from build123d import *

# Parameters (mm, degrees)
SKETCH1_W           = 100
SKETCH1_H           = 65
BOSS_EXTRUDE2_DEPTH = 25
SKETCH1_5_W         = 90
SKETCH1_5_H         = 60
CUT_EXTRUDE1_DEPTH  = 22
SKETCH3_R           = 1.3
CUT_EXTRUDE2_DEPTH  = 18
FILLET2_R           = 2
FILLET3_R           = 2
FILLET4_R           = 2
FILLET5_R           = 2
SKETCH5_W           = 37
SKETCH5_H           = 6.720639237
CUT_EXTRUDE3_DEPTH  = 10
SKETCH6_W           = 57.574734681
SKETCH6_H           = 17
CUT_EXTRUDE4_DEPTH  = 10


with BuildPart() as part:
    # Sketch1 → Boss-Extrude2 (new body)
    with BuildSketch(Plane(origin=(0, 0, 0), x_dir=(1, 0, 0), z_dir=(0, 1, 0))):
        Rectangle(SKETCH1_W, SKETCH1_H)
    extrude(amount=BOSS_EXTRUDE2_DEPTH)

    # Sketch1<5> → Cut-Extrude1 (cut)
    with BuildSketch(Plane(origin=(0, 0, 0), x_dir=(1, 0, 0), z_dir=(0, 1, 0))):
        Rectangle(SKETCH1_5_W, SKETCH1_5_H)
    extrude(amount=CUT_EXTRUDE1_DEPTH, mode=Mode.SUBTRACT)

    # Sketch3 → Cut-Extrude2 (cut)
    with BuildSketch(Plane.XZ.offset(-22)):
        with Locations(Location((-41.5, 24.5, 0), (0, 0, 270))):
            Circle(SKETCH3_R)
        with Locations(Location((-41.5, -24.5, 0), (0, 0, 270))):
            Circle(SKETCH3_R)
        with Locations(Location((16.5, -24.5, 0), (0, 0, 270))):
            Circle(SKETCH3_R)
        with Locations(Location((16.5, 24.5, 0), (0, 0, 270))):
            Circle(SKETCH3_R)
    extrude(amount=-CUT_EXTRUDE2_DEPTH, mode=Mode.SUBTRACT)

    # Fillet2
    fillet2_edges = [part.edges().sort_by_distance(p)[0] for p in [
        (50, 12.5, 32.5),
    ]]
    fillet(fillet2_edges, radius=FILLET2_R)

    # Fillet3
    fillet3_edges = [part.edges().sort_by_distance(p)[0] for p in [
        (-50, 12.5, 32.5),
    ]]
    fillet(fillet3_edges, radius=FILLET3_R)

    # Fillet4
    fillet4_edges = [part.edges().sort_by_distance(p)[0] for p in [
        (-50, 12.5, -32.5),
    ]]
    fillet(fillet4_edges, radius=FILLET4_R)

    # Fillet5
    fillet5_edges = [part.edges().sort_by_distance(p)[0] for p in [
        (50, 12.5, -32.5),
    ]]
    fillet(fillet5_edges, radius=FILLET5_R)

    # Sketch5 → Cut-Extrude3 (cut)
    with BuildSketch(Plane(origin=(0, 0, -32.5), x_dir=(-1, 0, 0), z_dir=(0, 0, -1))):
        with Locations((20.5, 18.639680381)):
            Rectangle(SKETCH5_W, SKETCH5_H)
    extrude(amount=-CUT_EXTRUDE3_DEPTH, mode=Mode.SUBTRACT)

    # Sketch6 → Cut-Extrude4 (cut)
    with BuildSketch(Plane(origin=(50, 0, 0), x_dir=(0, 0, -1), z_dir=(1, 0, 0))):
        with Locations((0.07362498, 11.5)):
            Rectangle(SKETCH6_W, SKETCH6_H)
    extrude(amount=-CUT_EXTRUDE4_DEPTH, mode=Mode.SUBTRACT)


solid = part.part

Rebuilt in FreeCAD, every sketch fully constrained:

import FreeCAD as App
import Part
import Sketcher

V = App.Vector


def edges_at(feature, points):
    """Names of the edges that pass closest to the given points."""
    edges = feature.Shape.Edges
    near = lambda p: min(range(len(edges)), key=lambda i: edges[i].distToShape(Part.Vertex(*p))[0])
    return sorted({f"Edge{near(p) + 1}" for p in points})

doc = App.newDocument("Part")
params = doc.addObject("Spreadsheet::Sheet", "Params")
for row, (alias, value) in enumerate([
    ("sketch1_width", "100 mm"),
    ("sketch1_height", "65 mm"),
    ("pad1_length", "25 mm"),
    ("sketch2_width", "90 mm"),
    ("sketch2_height", "60 mm"),
    ("pocket1_length", "22 mm"),
    ("sketch3_diameter", "2.6 mm"),
    ("pocket2_length", "18 mm"),
    ("fillet_radius", "2 mm"),
    ("fillet2_radius", "2 mm"),
    ("fillet3_radius", "2 mm"),
    ("fillet4_radius", "2 mm"),
    ("sketch4_width", "37 mm"),
    ("pocket3_length", "10 mm"),
    ("sketch5_width", "17 mm"),
    ("pocket4_length", "10 mm"),
], start=1):
    params.set(f"A{row}", alias)
    params.set(f"B{row}", "=" + value)
    params.setAlias(f"B{row}", alias)

body = doc.addObject("PartDesign::Body", "Body")

# Sketch on XZ plane
sketch1 = body.newObject("Sketcher::SketchObject", "Sketch")
sketch1.AttachmentSupport = (doc.getObject("XZ_Plane"), [""])
sketch1.MapMode = "FlatFace"
sketch1.addGeometry(Part.LineSegment(V(-50, -32, 0), V(-50, 32, 0)), False)
sketch1.addGeometry(Part.LineSegment(V(-50, 32, 0), V(50, 32, 0)), False)
sketch1.addGeometry(Part.LineSegment(V(50, 32, 0), V(50, -32, 0)), False)
sketch1.addGeometry(Part.LineSegment(V(50, -32, 0), V(-50, -32, 0)), False)
sketch1.addConstraint(Sketcher.Constraint("Coincident", 0, 2, 1, 1))
sketch1.addConstraint(Sketcher.Constraint("Coincident", 1, 2, 2, 1))
sketch1.addConstraint(Sketcher.Constraint("Coincident", 2, 2, 3, 1))
sketch1.addConstraint(Sketcher.Constraint("Coincident", 3, 2, 0, 1))
sketch1.addConstraint(Sketcher.Constraint("Vertical", 0))
sketch1.addConstraint(Sketcher.Constraint("Horizontal", 1))
sketch1.addConstraint(Sketcher.Constraint("Vertical", 2))
sketch1.addConstraint(Sketcher.Constraint("Horizontal", 3))
sketch1.addConstraint(Sketcher.Constraint("Symmetric", 0, 2, 2, 2, -1, 1))
sketch1.addConstraint(Sketcher.Constraint("DistanceX", 1, 1, 1, 2, 100.0))
sketch1.addConstraint(Sketcher.Constraint("DistanceY", 0, 1, 0, 2, 65.0))
sketch1.setExpression("Constraints[9]", "Params.sketch1_width")
sketch1.setExpression("Constraints[10]", "Params.sketch1_height")
pad1 = body.newObject("PartDesign::Pad", "Pad")
pad1.Profile = sketch1
pad1.setExpression("Length", "Params.pad1_length")
pad1.Reversed = True

# Sketch on XZ plane
sketch2 = body.newObject("Sketcher::SketchObject", "Sketch001")
sketch2.AttachmentSupport = (doc.getObject("XZ_Plane"), [""])
sketch2.MapMode = "FlatFace"
sketch2.addGeometry(Part.LineSegment(V(-45, -30, 0), V(-45, 30, 0)), False)
sketch2.addGeometry(Part.LineSegment(V(-45, 30, 0), V(45, 30, 0)), False)
sketch2.addGeometry(Part.LineSegment(V(45, 30, 0), V(45, -30, 0)), False)
sketch2.addGeometry(Part.LineSegment(V(45, -30, 0), V(-45, -30, 0)), False)
sketch2.addConstraint(Sketcher.Constraint("Coincident", 0, 2, 1, 1))
sketch2.addConstraint(Sketcher.Constraint("Coincident", 1, 2, 2, 1))
sketch2.addConstraint(Sketcher.Constraint("Coincident", 2, 2, 3, 1))
sketch2.addConstraint(Sketcher.Constraint("Coincident", 3, 2, 0, 1))
sketch2.addConstraint(Sketcher.Constraint("Vertical", 0))
sketch2.addConstraint(Sketcher.Constraint("Horizontal", 1))
sketch2.addConstraint(Sketcher.Constraint("Vertical", 2))
sketch2.addConstraint(Sketcher.Constraint("Horizontal", 3))
sketch2.addConstraint(Sketcher.Constraint("Symmetric", 0, 2, 2, 2, -1, 1))
sketch2.addConstraint(Sketcher.Constraint("DistanceX", 1, 1, 1, 2, 90.0))
sketch2.addConstraint(Sketcher.Constraint("DistanceY", 0, 1, 0, 2, 60.0))
sketch2.setExpression("Constraints[9]", "Params.sketch2_width")
sketch2.setExpression("Constraints[10]", "Params.sketch2_height")
pocket1 = body.newObject("PartDesign::Pocket", "Pocket")
pocket1.Profile = sketch2
pocket1.setExpression("Length", "Params.pocket1_length")

# Sketch on XZ plane
sketch3 = body.newObject("Sketcher::SketchObject", "Sketch002")
sketch3.AttachmentSupport = (doc.getObject("XZ_Plane"), [""])
sketch3.MapMode = "FlatFace"
sketch3.AttachmentOffset = App.Placement(V(0, 0, -22), App.Rotation())
sketch3.addGeometry(Part.Circle(V(-41.5, 24.5, 0), V(0, 0, 1), 1.3), False)
sketch3.addGeometry(Part.Circle(V(-41.5, -24.5, 0), V(0, 0, 1), 1.3), False)
sketch3.addGeometry(Part.Circle(V(16.5, -24.5, 0), V(0, 0, 1), 1.3), False)
sketch3.addGeometry(Part.Circle(V(16.5, 24.5, 0), V(0, 0, 1), 1.3), False)
sketch3.addConstraint(Sketcher.Constraint("Equal", 0, 1))
sketch3.addConstraint(Sketcher.Constraint("Equal", 1, 2))
sketch3.addConstraint(Sketcher.Constraint("Equal", 2, 3))
sketch3.addConstraint(Sketcher.Constraint("Symmetric", 0, 3, 1, 3, -1))
sketch3.addConstraint(Sketcher.Constraint("Symmetric", 2, 3, 3, 3, -1))
sketch3.addConstraint(Sketcher.Constraint("Horizontal", 1, 3, 2, 3))
sketch3.addConstraint(Sketcher.Constraint("Diameter", 0, 2.6))
sketch3.addConstraint(Sketcher.Constraint("DistanceY", 1, 3, 0, 3, 49.0))
sketch3.addConstraint(Sketcher.Constraint("DistanceX", 1, 3, 2, 3, 58.0))
sketch3.addConstraint(Sketcher.Constraint("DistanceX", 0, 3, -1, 1, 41.5))
sketch3.setExpression("Constraints[6]", "Params.sketch3_diameter")
pocket2 = body.newObject("PartDesign::Pocket", "Pocket001")
pocket2.Profile = sketch3
pocket2.setExpression("Length", "Params.pocket2_length")
doc.recompute()

fillet = body.newObject("PartDesign::Fillet", "Fillet")
fillet.Base = (pocket2, edges_at(pocket2, [(50, 12.5, 32.5)]))
fillet.setExpression("Radius", "Params.fillet_radius")
doc.recompute()

fillet2 = body.newObject("PartDesign::Fillet", "Fillet001")
fillet2.Base = (fillet, edges_at(fillet, [(-50, 12.5, 32.5)]))
fillet2.setExpression("Radius", "Params.fillet2_radius")
doc.recompute()

fillet3 = body.newObject("PartDesign::Fillet", "Fillet002")
fillet3.Base = (fillet2, edges_at(fillet2, [(-50, 12.5, -32.5)]))
fillet3.setExpression("Radius", "Params.fillet3_radius")
doc.recompute()

fillet4 = body.newObject("PartDesign::Fillet", "Fillet003")
fillet4.Base = (fillet3, edges_at(fillet3, [(50, 12.5, -32.5)]))
fillet4.setExpression("Radius", "Params.fillet4_radius")

# Sketch on XY plane
sketch4 = body.newObject("Sketcher::SketchObject", "Sketch003")
sketch4.AttachmentSupport = (doc.getObject("XY_Plane"), [""])
sketch4.MapMode = "FlatFace"
sketch4.AttachmentOffset = App.Placement(V(0, 0, -32.5), App.Rotation())
sketch4.addGeometry(Part.LineSegment(V(-2, 22, 0), V(-2, 15, 0)), False)
sketch4.addGeometry(Part.LineSegment(V(-2, 15, 0), V(-39, 15, 0)), False)
sketch4.addGeometry(Part.LineSegment(V(-39, 15, 0), V(-39, 22, 0)), False)
sketch4.addGeometry(Part.LineSegment(V(-39, 22, 0), V(-2, 22, 0)), False)
sketch4.addConstraint(Sketcher.Constraint("Coincident", 0, 2, 1, 1))
sketch4.addConstraint(Sketcher.Constraint("Coincident", 1, 2, 2, 1))
sketch4.addConstraint(Sketcher.Constraint("Coincident", 2, 2, 3, 1))
sketch4.addConstraint(Sketcher.Constraint("Coincident", 3, 2, 0, 1))
sketch4.addConstraint(Sketcher.Constraint("Vertical", 0))
sketch4.addConstraint(Sketcher.Constraint("Horizontal", 1))
sketch4.addConstraint(Sketcher.Constraint("Vertical", 2))
sketch4.addConstraint(Sketcher.Constraint("Horizontal", 3))
sketch4.addConstraint(Sketcher.Constraint("DistanceX", 1, 2, 1, 1, 37.0))
sketch4.addConstraint(Sketcher.Constraint("DistanceX", 0, 2, -1, 1, 2.0))
sketch4.addConstraint(Sketcher.Constraint("DistanceY", -1, 1, 2, 2, 22.0))
sketch4.addConstraint(Sketcher.Constraint("DistanceY", 0, 2, 0, 1, 6.720639))
sketch4.setExpression("Constraints[8]", "Params.sketch4_width")
pocket3 = body.newObject("PartDesign::Pocket", "Pocket002")
pocket3.Profile = sketch4
pocket3.setExpression("Length", "Params.pocket3_length")
pocket3.Reversed = True

# Sketch on YZ plane
sketch5 = body.newObject("Sketcher::SketchObject", "Sketch004")
sketch5.AttachmentSupport = (doc.getObject("YZ_Plane"), [""])
sketch5.MapMode = "FlatFace"
sketch5.AttachmentOffset = App.Placement(V(0, 0, 50), App.Rotation())
sketch5.addGeometry(Part.LineSegment(V(20, 29, 0), V(3, 29, 0)), False)
sketch5.addGeometry(Part.LineSegment(V(3, 29, 0), V(3, -29, 0)), False)
sketch5.addGeometry(Part.LineSegment(V(3, -29, 0), V(20, -29, 0)), False)
sketch5.addGeometry(Part.LineSegment(V(20, -29, 0), V(20, 29, 0)), False)
sketch5.addConstraint(Sketcher.Constraint("Coincident", 0, 2, 1, 1))
sketch5.addConstraint(Sketcher.Constraint("Coincident", 1, 2, 2, 1))
sketch5.addConstraint(Sketcher.Constraint("Coincident", 2, 2, 3, 1))
sketch5.addConstraint(Sketcher.Constraint("Coincident", 3, 2, 0, 1))
sketch5.addConstraint(Sketcher.Constraint("Horizontal", 0))
sketch5.addConstraint(Sketcher.Constraint("Vertical", 1))
sketch5.addConstraint(Sketcher.Constraint("Horizontal", 2))
sketch5.addConstraint(Sketcher.Constraint("Vertical", 3))
sketch5.addConstraint(Sketcher.Constraint("DistanceX", 0, 2, 0, 1, 17.0))
sketch5.addConstraint(Sketcher.Constraint("DistanceX", -1, 1, 0, 2, 3.0))
sketch5.addConstraint(Sketcher.Constraint("DistanceY", 1, 2, 1, 1, 57.574735))
sketch5.addConstraint(Sketcher.Constraint("DistanceY", -1, 1, 0, 2, 28.713742))
sketch5.setExpression("Constraints[8]", "Params.sketch5_width")
pocket4 = body.newObject("PartDesign::Pocket", "Pocket003")
pocket4.Profile = sketch5
pocket4.setExpression("Length", "Params.pocket4_length")

doc.recompute()
